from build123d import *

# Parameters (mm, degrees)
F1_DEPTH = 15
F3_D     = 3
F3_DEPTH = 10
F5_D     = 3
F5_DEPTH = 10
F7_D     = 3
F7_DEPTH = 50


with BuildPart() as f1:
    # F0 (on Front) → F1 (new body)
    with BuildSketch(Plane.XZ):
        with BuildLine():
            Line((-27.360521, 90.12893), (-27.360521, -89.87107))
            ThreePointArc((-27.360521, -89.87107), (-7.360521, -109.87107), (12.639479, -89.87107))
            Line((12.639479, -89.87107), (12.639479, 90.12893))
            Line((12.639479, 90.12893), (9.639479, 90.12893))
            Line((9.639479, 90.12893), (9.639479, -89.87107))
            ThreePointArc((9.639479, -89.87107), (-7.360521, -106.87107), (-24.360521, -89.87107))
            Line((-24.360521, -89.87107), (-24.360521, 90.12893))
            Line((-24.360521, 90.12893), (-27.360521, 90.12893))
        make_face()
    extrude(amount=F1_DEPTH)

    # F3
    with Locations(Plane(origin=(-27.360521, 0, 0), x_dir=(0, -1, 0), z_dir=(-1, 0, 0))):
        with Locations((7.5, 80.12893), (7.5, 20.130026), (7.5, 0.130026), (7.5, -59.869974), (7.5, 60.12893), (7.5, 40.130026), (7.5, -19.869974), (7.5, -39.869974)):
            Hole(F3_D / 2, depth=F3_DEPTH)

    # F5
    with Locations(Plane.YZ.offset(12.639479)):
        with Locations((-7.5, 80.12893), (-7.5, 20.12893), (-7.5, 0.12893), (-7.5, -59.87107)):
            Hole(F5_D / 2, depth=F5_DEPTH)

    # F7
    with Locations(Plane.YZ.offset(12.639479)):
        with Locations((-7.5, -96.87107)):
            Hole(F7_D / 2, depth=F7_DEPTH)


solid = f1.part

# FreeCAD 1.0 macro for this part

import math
import FreeCAD as App
import Part
import Sketcher
Q = App.Units.Quantity

doc = App.newDocument("Part")
body = doc.addObject("PartDesign::Body", "Body")

sketch1 = body.newObject("Sketcher::SketchObject", "Sketch")
sketch1.AttachmentSupport = (doc.getObject("XZ_Plane"), [""])
sketch1.MapMode = "FlatFace"
sketch1.addGeometry(Part.LineSegment(App.Vector(-27.4, 90.1, 0), App.Vector(-27.4, -89.9, 0)), False)
sketch1.addGeometry(Part.ArcOfCircle(Part.Circle(App.Vector(-7.4, -89.9, 0), App.Vector(0, 0, 1), 20), math.radians(180), math.radians(360)), False)
sketch1.addGeometry(Part.LineSegment(App.Vector(12.6, -89.9, 0), App.Vector(12.6, 90.1, 0)), False)
sketch1.addGeometry(Part.LineSegment(App.Vector(12.6, 90.1, 0), App.Vector(9.6, 90.1, 0)), False)
sketch1.addGeometry(Part.LineSegment(App.Vector(9.6, 90.1, 0), App.Vector(9.6, -89.9, 0)), False)
sketch1.addGeometry(Part.ArcOfCircle(Part.Circle(App.Vector(-7.4, -89.9, 0), App.Vector(0, 0, 1), 17), math.radians(180), math.radians(360)), False)
sketch1.addGeometry(Part.LineSegment(App.Vector(-24.4, -89.9, 0), App.Vector(-24.4, 90.1, 0)), False)
sketch1.addGeometry(Part.LineSegment(App.Vector(-24.4, 90.1, 0), App.Vector(-27.4, 90.1, 0)), False)
sketch1.addConstraint(Sketcher.Constraint("Tangent", 0, 2, 1, 1))
sketch1.addConstraint(Sketcher.Constraint("Tangent", 1, 2, 2, 1))
sketch1.addConstraint(Sketcher.Constraint("Coincident", 2, 2, 3, 1))
sketch1.addConstraint(Sketcher.Constraint("Coincident", 3, 2, 4, 1))
sketch1.addConstraint(Sketcher.Constraint("Tangent", 4, 2, 5, 2))
sketch1.addConstraint(Sketcher.Constraint("Tangent", 5, 1, 6, 1))
sketch1.addConstraint(Sketcher.Constraint("Coincident", 6, 2, 7, 1))
sketch1.addConstraint(Sketcher.Constraint("Coincident", 7, 2, 0, 1))
sketch1.addConstraint(Sketcher.Constraint("Vertical", 0))
sketch1.addConstraint(Sketcher.Constraint("Vertical", 2))
sketch1.addConstraint(Sketcher.Constraint("Horizontal", 3))
sketch1.addConstraint(Sketcher.Constraint("Vertical", 4))
sketch1.addConstraint(Sketcher.Constraint("Vertical", 6))
sketch1.addConstraint(Sketcher.Constraint("Horizontal", 7))
sketch1.addConstraint(Sketcher.Constraint("Coincident", 5, 3, 1, 3))
sketch1.addConstraint(Sketcher.Constraint("Horizontal", 3, 2, 6, 2))
sketch1.addConstraint(Sketcher.Constraint("Radius", 1, Q("20 mm")))
sketch1.addConstraint(Sketcher.Constraint("Radius", 5, Q("17 mm")))
sketch1.addConstraint(Sketcher.Constraint("DistanceY", 0, 2, 0, 1, Q("180 mm")))
sketch1.addConstraint(Sketcher.Constraint("DistanceX", 1, 3, -1, 1, Q("7.360521 mm")))
sketch1.addConstraint(Sketcher.Constraint("DistanceY", 1, 3, -1, 1, Q("89.87107 mm")))
pad1 = body.newObject("PartDesign::Pad", "Pad")
pad1.Profile = sketch1
pad1.Length = 15

sketch2 = body.newObject("Sketcher::SketchObject", "Sketch001")
sketch2.AttachmentSupport = (doc.getObject("YZ_Plane"), [""])
sketch2.MapMode = "FlatFace"
sketch2.AttachmentOffset = App.Placement(App.Vector(0, 0, -27.360521), App.Rotation())
sketch2.addGeometry(Part.Circle(App.Vector(-7.5, 80.1, 0), App.Vector(0, 0, 1), 1.5), False)
sketch2.addGeometry(Part.Circle(App.Vector(-7.5, 20.1, 0), App.Vector(0, 0, 1), 1.5), False)
sketch2.addGeometry(Part.Circle(App.Vector(-7.5, 0.1, 0), App.Vector(0, 0, 1), 1.5), False)
sketch2.addGeometry(Part.Circle(App.Vector(-7.5, -59.9, 0), App.Vector(0, 0, 1), 1.5), False)
sketch2.addGeometry(Part.Circle(App.Vector(-7.5, 60.1, 0), App.Vector(0, 0, 1), 1.5), False)
sketch2.addGeometry(Part.Circle(App.Vector(-7.5, 40.1, 0), App.Vector(0, 0, 1), 1.5), False)
sketch2.addGeometry(Part.Circle(App.Vector(-7.5, -19.9, 0), App.Vector(0, 0, 1), 1.5), False)
sketch2.addGeometry(Part.Circle(App.Vector(-7.5, -39.9, 0), App.Vector(0, 0, 1), 1.5), False)
sketch2.addConstraint(Sketcher.Constraint("Equal", 0, 1))
sketch2.addConstraint(Sketcher.Constraint("Equal", 1, 2))
sketch2.addConstraint(Sketcher.Constraint("Equal", 2, 3))
sketch2.addConstraint(Sketcher.Constraint("Equal", 3, 4))
sketch2.addConstraint(Sketcher.Constraint("Equal", 4, 5))
sketch2.addConstraint(Sketcher.Constraint("Equal", 5, 6))
sketch2.addConstraint(Sketcher.Constraint("Equal", 6, 7))
sketch2.addConstraint(Sketcher.Constraint("Vertical", 0, 3, 1, 3))
sketch2.addConstraint(Sketcher.Constraint("Vertical", 1, 3, 2, 3))
sketch2.addConstraint(Sketcher.Constraint("Vertical", 2, 3, 3, 3))
sketch2.addConstraint(Sketcher.Constraint("Vertical", 3, 3, 4, 3))
sketch2.addConstraint(Sketcher.Constraint("Vertical", 4, 3, 5, 3))
sketch2.addConstraint(Sketcher.Constraint("Vertical", 5, 3, 6, 3))
sketch2.addConstraint(Sketcher.Constraint("Vertical", 6, 3, 7, 3))
sketch2.addConstraint(Sketcher.Constraint("Diameter", 0, Q("3 mm")))
sketch2.addConstraint(Sketcher.Constraint("DistanceY", 2, 3, 1, 3, Q("20 mm")))
sketch2.addConstraint(Sketcher.Constraint("DistanceY", 3, 3, 2, 3, Q("60 mm")))
sketch2.addConstraint(Sketcher.Constraint("DistanceY", 4, 3, 0, 3, Q("20 mm")))
sketch2.addConstraint(Sketcher.Constraint("DistanceY", 1, 3, 5, 3, Q("20 mm")))
sketch2.addConstraint(Sketcher.Constraint("DistanceY", 6, 3, 2, 3, Q("20 mm")))
sketch2.addConstraint(Sketcher.Constraint("DistanceY", 3, 3, 7, 3, Q("20 mm")))
sketch2.addConstraint(Sketcher.Constraint("DistanceX", 0, 3, -1, 1, Q("7.5 mm")))
sketch2.addConstraint(Sketcher.Constraint("DistanceY", -1, 1, 0, 3, Q("80.12893 mm")))
sketch2.addConstraint(Sketcher.Constraint("DistanceY", -1, 1, 1, 3, Q("20.130026 mm")))
doc.recompute()
hole = body.newObject("PartDesign::Hole", "Hole")
hole.Profile = sketch2
hole.ThreadType = "None"
hole.Diameter = 3
hole.DepthType = "Dimension"
hole.Depth = 10
hole.DrillPoint = "Flat"
hole.Reversed = True

sketch3 = body.newObject("Sketcher::SketchObject", "Sketch002")
sketch3.AttachmentSupport = (doc.getObject("YZ_Plane"), [""])
sketch3.MapMode = "FlatFace"
sketch3.AttachmentOffset = App.Placement(App.Vector(0, 0, 12.639479), App.Rotation())
sketch3.addGeometry(Part.Circle(App.Vector(-7.5, 80.1, 0), App.Vector(0, 0, 1), 1.5), False)
sketch3.addGeometry(Part.Circle(App.Vector(-7.5, 20.1, 0), App.Vector(0, 0, 1), 1.5), False)
sketch3.addGeometry(Part.Circle(App.Vector(-7.5, 0.1, 0), App.Vector(0, 0, 1), 1.5), False)
sketch3.addGeometry(Part.Circle(App.Vector(-7.5, -59.9, 0), App.Vector(0, 0, 1), 1.5), False)
sketch3.addConstraint(Sketcher.Constraint("Equal", 0, 1))
sketch3.addConstraint(Sketcher.Constraint("Equal", 1, 2))
sketch3.addConstraint(Sketcher.Constraint("Equal", 2, 3))
sketch3.addConstraint(Sketcher.Constraint("Vertical", 0, 3, 1, 3))
sketch3.addConstraint(Sketcher.Constraint("Vertical", 1, 3, 2, 3))
sketch3.addConstraint(Sketcher.Constraint("Vertical", 2, 3, 3, 3))
sketch3.addConstraint(Sketcher.Constraint("Diameter", 0, Q("3 mm")))
sketch3.addConstraint(Sketcher.Constraint("DistanceY", 1, 3, 0, 3, Q("60 mm")))
sketch3.addConstraint(Sketcher.Constraint("DistanceY", 2, 3, 1, 3, Q("20 mm")))
sketch3.addConstraint(Sketcher.Constraint("DistanceY", 3, 3, 2, 3, Q("60 mm")))
sketch3.addConstraint(Sketcher.Constraint("DistanceX", 0, 3, -1, 1, Q("7.5 mm")))
sketch3.addConstraint(Sketcher.Constraint("DistanceY", -1, 1, 0, 3, Q("80.12893 mm")))
doc.recompute()
hole2 = body.newObject("PartDesign::Hole", "Hole001")
hole2.Profile = sketch3
hole2.ThreadType = "None"
hole2.Diameter = 3
hole2.DepthType = "Dimension"
hole2.Depth = 10
hole2.DrillPoint = "Flat"

sketch4 = body.newObject("Sketcher::SketchObject", "Sketch003")
sketch4.AttachmentSupport = (doc.getObject("YZ_Plane"), [""])
sketch4.MapMode = "FlatFace"
sketch4.AttachmentOffset = App.Placement(App.Vector(0, 0, 12.639479), App.Rotation())
sketch4.addGeometry(Part.Circle(App.Vector(-7.5, -96.9, 0), App.Vector(0, 0, 1), 1.5), False)
sketch4.addConstraint(Sketcher.Constraint("Diameter", 0, Q("3 mm")))
sketch4.addConstraint(Sketcher.Constraint("DistanceX", 0, 3, -1, 1, Q("7.5 mm")))
sketch4.addConstraint(Sketcher.Constraint("DistanceY", 0, 3, -1, 1, Q("96.87107 mm")))
doc.recompute()
hole3 = body.newObject("PartDesign::Hole", "Hole002")
hole3.Profile = sketch4
hole3.ThreadType = "None"
hole3.Diameter = 3
hole3.DepthType = "Dimension"
hole3.Depth = 50
hole3.DrillPoint = "Flat"

doc.recompute()
